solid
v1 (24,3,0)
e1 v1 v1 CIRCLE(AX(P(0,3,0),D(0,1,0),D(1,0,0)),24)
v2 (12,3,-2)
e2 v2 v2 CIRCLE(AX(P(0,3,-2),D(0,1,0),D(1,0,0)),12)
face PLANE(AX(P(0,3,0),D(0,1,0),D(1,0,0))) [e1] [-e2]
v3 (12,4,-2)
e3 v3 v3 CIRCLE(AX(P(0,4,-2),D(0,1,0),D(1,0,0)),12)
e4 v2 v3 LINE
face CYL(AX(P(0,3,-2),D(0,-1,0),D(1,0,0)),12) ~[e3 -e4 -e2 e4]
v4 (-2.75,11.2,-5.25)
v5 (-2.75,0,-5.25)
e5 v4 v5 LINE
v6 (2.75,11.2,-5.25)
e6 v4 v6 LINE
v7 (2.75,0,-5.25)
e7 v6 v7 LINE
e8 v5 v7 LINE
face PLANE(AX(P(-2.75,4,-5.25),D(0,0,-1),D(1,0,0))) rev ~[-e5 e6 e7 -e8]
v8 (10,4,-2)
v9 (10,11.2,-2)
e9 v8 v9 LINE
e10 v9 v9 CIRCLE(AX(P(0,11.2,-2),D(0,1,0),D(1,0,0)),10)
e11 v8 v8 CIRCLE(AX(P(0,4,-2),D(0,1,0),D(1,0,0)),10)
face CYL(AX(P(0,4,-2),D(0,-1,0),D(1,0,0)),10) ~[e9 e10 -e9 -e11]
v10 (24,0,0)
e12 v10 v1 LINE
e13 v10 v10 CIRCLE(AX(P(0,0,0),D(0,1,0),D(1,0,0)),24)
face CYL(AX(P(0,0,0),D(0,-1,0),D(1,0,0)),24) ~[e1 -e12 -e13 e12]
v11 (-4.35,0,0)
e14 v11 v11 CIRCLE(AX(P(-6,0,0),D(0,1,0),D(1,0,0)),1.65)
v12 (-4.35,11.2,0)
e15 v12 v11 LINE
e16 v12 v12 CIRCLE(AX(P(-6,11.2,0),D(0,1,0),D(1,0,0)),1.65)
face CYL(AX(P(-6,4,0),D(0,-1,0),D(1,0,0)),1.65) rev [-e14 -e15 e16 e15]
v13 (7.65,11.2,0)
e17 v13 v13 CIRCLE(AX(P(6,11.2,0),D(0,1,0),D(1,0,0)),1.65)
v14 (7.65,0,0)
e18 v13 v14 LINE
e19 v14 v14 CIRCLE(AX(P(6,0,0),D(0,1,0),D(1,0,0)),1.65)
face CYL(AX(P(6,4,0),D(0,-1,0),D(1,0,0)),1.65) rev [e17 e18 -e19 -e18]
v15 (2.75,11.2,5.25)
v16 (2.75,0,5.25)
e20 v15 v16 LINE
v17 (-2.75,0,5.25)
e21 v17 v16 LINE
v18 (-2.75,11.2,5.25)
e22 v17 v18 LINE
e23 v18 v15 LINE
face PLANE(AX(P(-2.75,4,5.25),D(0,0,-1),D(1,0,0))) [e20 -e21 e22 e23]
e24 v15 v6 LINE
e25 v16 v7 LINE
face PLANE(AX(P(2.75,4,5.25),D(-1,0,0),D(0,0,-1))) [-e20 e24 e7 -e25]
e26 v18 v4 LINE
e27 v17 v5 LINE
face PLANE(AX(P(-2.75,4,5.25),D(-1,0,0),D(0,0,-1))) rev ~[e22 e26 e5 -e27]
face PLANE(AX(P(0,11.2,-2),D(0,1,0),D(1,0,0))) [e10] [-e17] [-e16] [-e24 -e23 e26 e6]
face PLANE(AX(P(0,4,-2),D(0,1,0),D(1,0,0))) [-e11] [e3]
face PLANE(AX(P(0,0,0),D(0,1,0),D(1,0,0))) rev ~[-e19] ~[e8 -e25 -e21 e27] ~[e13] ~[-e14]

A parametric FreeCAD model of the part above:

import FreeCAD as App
import Part
import Sketcher

V = App.Vector
Q = App.Units.Quantity

doc = App.newDocument("Part")
body = doc.addObject("PartDesign::Body", "Body")

# Sketch on XZ plane
sketch1 = body.newObject("Sketcher::SketchObject", "Sketch")
sketch1.AttachmentSupport = (doc.getObject("XZ_Plane"), [""])
sketch1.MapMode = "FlatFace"
sketch1.addGeometry(Part.Circle(V(0, 0, 0), V(0, 0, 1), 24), False)
sketch1.addGeometry(Part.Circle(V(-6, 0, 0), V(0, 0, 1), 1.6), False)
sketch1.addGeometry(Part.LineSegment(V(2.8, 5.2, 0), V(-2.8, 5.2, 0)), False)
sketch1.addGeometry(Part.LineSegment(V(-2.8, 5.2, 0), V(-2.8, -5.2, 0)), False)
sketch1.addGeometry(Part.LineSegment(V(-2.8, -5.2, 0), V(2.8, -5.2, 0)), False)
sketch1.addGeometry(Part.LineSegment(V(2.8, -5.2, 0), V(2.8, 5.2, 0)), False)
sketch1.addGeometry(Part.Circle(V(6, 0, 0), V(0, 0, 1), 1.6), False)
sketch1.addConstraint(Sketcher.Constraint("Coincident", 2, 2, 3, 1))
sketch1.addConstraint(Sketcher.Constraint("Coincident", 3, 2, 4, 1))
sketch1.addConstraint(Sketcher.Constraint("Coincident", 4, 2, 5, 1))
sketch1.addConstraint(Sketcher.Constraint("Coincident", 5, 2, 2, 1))
sketch1.addConstraint(Sketcher.Constraint("Horizontal", 2))
sketch1.addConstraint(Sketcher.Constraint("Vertical", 3))
sketch1.addConstraint(Sketcher.Constraint("Horizontal", 4))
sketch1.addConstraint(Sketcher.Constraint("Vertical", 5))
sketch1.addConstraint(Sketcher.Constraint("Coincident", 0, 3, -1, 1))
sketch1.addConstraint(Sketcher.Constraint("Equal", 1, 6))
sketch1.addConstraint(Sketcher.Constraint("Symmetric", 1, 3, 6, 3, -1, 1))
sketch1.addConstraint(Sketcher.Constraint("Symmetric", 2, 2, 4, 2, -1, 1))
sketch1.addConstraint(Sketcher.Constraint("PointOnObject", 1, 3, -1))
sketch1.addConstraint(Sketcher.Constraint("Diameter", 0, Q("48 mm")))
sketch1.addConstraint(Sketcher.Constraint("Diameter", 1, Q("3.3 mm")))
sketch1.addConstraint(Sketcher.Constraint("DistanceX", 2, 2, 2, 1, Q("5.5 mm")))
sketch1.addConstraint(Sketcher.Constraint("DistanceY", 3, 2, 3, 1, Q("10.5 mm")))
sketch1.addConstraint(Sketcher.Constraint("DistanceX", 1, 3, -1, 1, Q("6 mm")))
pad1 = body.newObject("PartDesign::Pad", "Pad")
pad1.Profile = sketch1
pad1.Length = 3
pad1.Reversed = True

# Sketch on XZ plane
sketch2 = body.newObject("Sketcher::SketchObject", "Sketch001")
sketch2.AttachmentSupport = (doc.getObject("XZ_Plane"), [""])
sketch2.MapMode = "FlatFace"
sketch2.AttachmentOffset = App.Placement(V(0, 0, -3), App.Rotation())
sketch2.addGeometry(Part.Circle(V(0, -2, 0), V(0, 0, 1), 12), False)
sketch2.addGeometry(Part.Circle(V(-6, 0, 0), V(0, 0, 1), 1.6), False)
sketch2.addGeometry(Part.LineSegment(V(2.8, 5.2, 0), V(-2.8, 5.2, 0)), False)
sketch2.addGeometry(Part.LineSegment(V(-2.8, 5.2, 0), V(-2.8, -5.2, 0)), False)
sketch2.addGeometry(Part.LineSegment(V(-2.8, -5.2, 0), V(2.8, -5.2, 0)), False)
sketch2.addGeometry(Part.LineSegment(V(2.8, -5.2, 0), V(2.8, 5.2, 0)), False)
sketch2.addGeometry(Part.Circle(V(6, 0, 0), V(0, 0, 1), 1.6), False)
sketch2.addConstraint(Sketcher.Constraint("Coincident", 2, 2, 3, 1))
sketch2.addConstraint(Sketcher.Constraint("Coincident", 3, 2, 4, 1))
sketch2.addConstraint(Sketcher.Constraint("Coincident", 4, 2, 5, 1))
sketch2.addConstraint(Sketcher.Constraint("Coincident", 5, 2, 2, 1))
sketch2.addConstraint(Sketcher.Constraint("Horizontal", 2))
sketch2.addConstraint(Sketcher.Constraint("Vertical", 3))
sketch2.addConstraint(Sketcher.Constraint("Horizontal", 4))
sketch2.addConstraint(Sketcher.Constraint("Vertical", 5))
sketch2.addConstraint(Sketcher.Constraint("Equal", 1, 6))
sketch2.addConstraint(Sketcher.Constraint("Symmetric", 1, 3, 6, 3, -1, 1))
sketch2.addConstraint(Sketcher.Constraint("Symmetric", 2, 2, 4, 2, -1, 1))
sketch2.addConstraint(Sketcher.Constraint("PointOnObject", 0, 3, -2))
sketch2.addConstraint(Sketcher.Constraint("PointOnObject", 1, 3, -1))
sketch2.addConstraint(Sketcher.Constraint("Diameter", 0, Q("24 mm")))
sketch2.addConstraint(Sketcher.Constraint("Diameter", 1, Q("3.3 mm")))
sketch2.addConstraint(Sketcher.Constraint("DistanceX", 2, 2, 2, 1, Q("5.5 mm")))
sketch2.addConstraint(Sketcher.Constraint("DistanceY", 3, 2, 3, 1, Q("10.5 mm")))
sketch2.addConstraint(Sketcher.Constraint("DistanceY", 0, 3, -1, 1, Q("2 mm")))
sketch2.addConstraint(Sketcher.Constraint("DistanceX", 1, 3, -1, 1, Q("6 mm")))
pad2 = body.newObject("PartDesign::Pad", "Pad001")
pad2.Profile = sketch2
pad2.Length = 1
pad2.Reversed = True

# Sketch on XZ plane
sketch3 = body.newObject("Sketcher::SketchObject", "Sketch002")
sketch3.AttachmentSupport = (doc.getObject("XZ_Plane"), [""])
sketch3.MapMode = "FlatFace"
sketch3.AttachmentOffset = App.Placement(V(0, 0, -4), App.Rotation())
sketch3.addGeometry(Part.Circle(V(0, -2, 0), V(0, 0, 1), 10), False)
sketch3.addGeometry(Part.Circle(V(-6, 0, 0), V(0, 0, 1), 1.6), False)
sketch3.addGeometry(Part.LineSegment(V(2.8, 5.2, 0), V(-2.8, 5.2, 0)), False)
sketch3.addGeometry(Part.LineSegment(V(-2.8, 5.2, 0), V(-2.8, -5.2, 0)), False)
sketch3.addGeometry(Part.LineSegment(V(-2.8, -5.2, 0), V(2.8, -5.2, 0)), False)
sketch3.addGeometry(Part.LineSegment(V(2.8, -5.2, 0), V(2.8, 5.2, 0)), False)
sketch3.addGeometry(Part.Circle(V(6, 0, 0), V(0, 0, 1), 1.6), False)
sketch3.addConstraint(Sketcher.Constraint("Coincident", 2, 2, 3, 1))
sketch3.addConstraint(Sketcher.Constraint("Coincident", 3, 2, 4, 1))
sketch3.addConstraint(Sketcher.Constraint("Coincident", 4, 2, 5, 1))
sketch3.addConstraint(Sketcher.Constraint("Coincident", 5, 2, 2, 1))
sketch3.addConstraint(Sketcher.Constraint("Horizontal", 2))
sketch3.addConstraint(Sketcher.Constraint("Vertical", 3))
sketch3.addConstraint(Sketcher.Constraint("Horizontal", 4))
sketch3.addConstraint(Sketcher.Constraint("Vertical", 5))
sketch3.addConstraint(Sketcher.Constraint("Equal", 1, 6))
sketch3.addConstraint(Sketcher.Constraint("Symmetric", 1, 3, 6, 3, -1, 1))
sketch3.addConstraint(Sketcher.Constraint("Symmetric", 2, 2, 4, 2, -1, 1))
sketch3.addConstraint(Sketcher.Constraint("PointOnObject", 0, 3, -2))
sketch3.addConstraint(Sketcher.Constraint("PointOnObject", 1, 3, -1))
sketch3.addConstraint(Sketcher.Constraint("Diameter", 0, Q("20 mm")))
sketch3.addConstraint(Sketcher.Constraint("Diameter", 1, Q("3.3 mm")))
sketch3.addConstraint(Sketcher.Constraint("DistanceX", 2, 2, 2, 1, Q("5.5 mm")))
sketch3.addConstraint(Sketcher.Constraint("DistanceY", 3, 2, 3, 1, Q("10.5 mm")))
sketch3.addConstraint(Sketcher.Constraint("DistanceY", 0, 3, -1, 1, Q("2 mm")))
sketch3.addConstraint(Sketcher.Constraint("DistanceX", 1, 3, -1, 1, Q("6 mm")))
pad3 = body.newObject("PartDesign::Pad", "Pad002")
pad3.Profile = sketch3
pad3.Length = 7.2
pad3.Reversed = True

doc.recompute()
